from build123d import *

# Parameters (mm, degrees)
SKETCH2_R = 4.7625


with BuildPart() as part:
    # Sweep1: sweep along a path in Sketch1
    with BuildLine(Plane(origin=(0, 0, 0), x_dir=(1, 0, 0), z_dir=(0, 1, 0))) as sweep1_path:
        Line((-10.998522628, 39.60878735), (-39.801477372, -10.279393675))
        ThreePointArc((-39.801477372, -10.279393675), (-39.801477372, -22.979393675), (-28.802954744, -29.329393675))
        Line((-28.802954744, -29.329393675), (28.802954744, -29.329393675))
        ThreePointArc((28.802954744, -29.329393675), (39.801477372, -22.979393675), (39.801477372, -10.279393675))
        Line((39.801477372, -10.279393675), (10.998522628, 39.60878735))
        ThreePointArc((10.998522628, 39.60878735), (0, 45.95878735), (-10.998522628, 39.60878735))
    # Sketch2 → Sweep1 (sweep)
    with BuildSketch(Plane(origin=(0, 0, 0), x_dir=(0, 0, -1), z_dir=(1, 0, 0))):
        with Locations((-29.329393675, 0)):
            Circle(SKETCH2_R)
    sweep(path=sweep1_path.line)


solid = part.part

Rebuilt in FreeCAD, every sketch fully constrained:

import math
import FreeCAD as App
import Part
import Sketcher

V = App.Vector
Q = App.Units.Quantity

doc = App.newDocument("Part")
body = doc.addObject("PartDesign::Body", "Body")

sketch1 = body.newObject("Sketcher::SketchObject", "Sketch")
sketch1.AttachmentSupport = (doc.getObject("YZ_Plane"), [""])
sketch1.MapMode = "FlatFace"
sketch1.addGeometry(Part.Circle(V(0, 29.3, 0), V(0, 0, 1), 4.8), False)
sketch1.addConstraint([
    Sketcher.Constraint("PointOnObject", 0, 3, -2),
    Sketcher.Constraint("Diameter", 0, Q("0.375 in")),
    Sketcher.Constraint("DistanceY", -1, 1, 0, 3, 29.329394),
])

sketch2 = body.newObject("Sketcher::SketchObject", "Sketch001")
sketch2.AttachmentSupport = (doc.getObject("XZ_Plane"), [""])
sketch2.MapMode = "FlatFace"
sketch2.addGeometry([
    Part.LineSegment(V(-11, -40, 0), V(-40, 10, 0)),
    Part.ArcOfCircle(Part.Circle(V(-29, 17, 0), V(0, 0, 1), 13), math.radians(90), math.radians(210)),
    Part.LineSegment(V(-29, 29, 0), V(29, 29, 0)),
    Part.ArcOfCircle(Part.Circle(V(29, 17, 0), V(0, 0, 1), 13), math.radians(-30), math.radians(90)),
    Part.LineSegment(V(40, 10, 0), V(11, -40, 0)),
    Part.ArcOfCircle(Part.Circle(V(0, -33, 0), V(0, 0, 1), 13), math.radians(-150), math.radians(-30)),
], False)
sketch2.addConstraint([
    Sketcher.Constraint("Tangent", 0, 2, 1, 2),
    Sketcher.Constraint("Tangent", 1, 1, 2, 1),
    Sketcher.Constraint("Tangent", 2, 2, 3, 2),
    Sketcher.Constraint("Tangent", 3, 1, 4, 1),
    Sketcher.Constraint("Tangent", 4, 2, 5, 2),
    Sketcher.Constraint("Tangent", 5, 1, 0, 1),
    Sketcher.Constraint("Horizontal", 2),
    Sketcher.Constraint("Equal", 1, 3),
    Sketcher.Constraint("Equal", 3, 5),
    Sketcher.Constraint("Symmetric", 0, 2, 3, 1, -2),
    Sketcher.Constraint("Radius", 1, Q("0.5 in")),
    Sketcher.Constraint("Angle", 0, Q("120 deg")),
    Sketcher.Constraint("DistanceX", 0, 2, 4, 2, Q("2 in")),
    Sketcher.Constraint("DistanceY", -1, 1, 1, 3, 16.629394),
])
doc.recompute()

additivepipe = body.newObject("PartDesign::AdditivePipe", "AdditivePipe")
additivepipe.Profile = sketch1
additivepipe.Spine = (sketch2, ["Edge1", "Edge2", "Edge3", "Edge4", "Edge5", "Edge6"])

doc.recompute()
